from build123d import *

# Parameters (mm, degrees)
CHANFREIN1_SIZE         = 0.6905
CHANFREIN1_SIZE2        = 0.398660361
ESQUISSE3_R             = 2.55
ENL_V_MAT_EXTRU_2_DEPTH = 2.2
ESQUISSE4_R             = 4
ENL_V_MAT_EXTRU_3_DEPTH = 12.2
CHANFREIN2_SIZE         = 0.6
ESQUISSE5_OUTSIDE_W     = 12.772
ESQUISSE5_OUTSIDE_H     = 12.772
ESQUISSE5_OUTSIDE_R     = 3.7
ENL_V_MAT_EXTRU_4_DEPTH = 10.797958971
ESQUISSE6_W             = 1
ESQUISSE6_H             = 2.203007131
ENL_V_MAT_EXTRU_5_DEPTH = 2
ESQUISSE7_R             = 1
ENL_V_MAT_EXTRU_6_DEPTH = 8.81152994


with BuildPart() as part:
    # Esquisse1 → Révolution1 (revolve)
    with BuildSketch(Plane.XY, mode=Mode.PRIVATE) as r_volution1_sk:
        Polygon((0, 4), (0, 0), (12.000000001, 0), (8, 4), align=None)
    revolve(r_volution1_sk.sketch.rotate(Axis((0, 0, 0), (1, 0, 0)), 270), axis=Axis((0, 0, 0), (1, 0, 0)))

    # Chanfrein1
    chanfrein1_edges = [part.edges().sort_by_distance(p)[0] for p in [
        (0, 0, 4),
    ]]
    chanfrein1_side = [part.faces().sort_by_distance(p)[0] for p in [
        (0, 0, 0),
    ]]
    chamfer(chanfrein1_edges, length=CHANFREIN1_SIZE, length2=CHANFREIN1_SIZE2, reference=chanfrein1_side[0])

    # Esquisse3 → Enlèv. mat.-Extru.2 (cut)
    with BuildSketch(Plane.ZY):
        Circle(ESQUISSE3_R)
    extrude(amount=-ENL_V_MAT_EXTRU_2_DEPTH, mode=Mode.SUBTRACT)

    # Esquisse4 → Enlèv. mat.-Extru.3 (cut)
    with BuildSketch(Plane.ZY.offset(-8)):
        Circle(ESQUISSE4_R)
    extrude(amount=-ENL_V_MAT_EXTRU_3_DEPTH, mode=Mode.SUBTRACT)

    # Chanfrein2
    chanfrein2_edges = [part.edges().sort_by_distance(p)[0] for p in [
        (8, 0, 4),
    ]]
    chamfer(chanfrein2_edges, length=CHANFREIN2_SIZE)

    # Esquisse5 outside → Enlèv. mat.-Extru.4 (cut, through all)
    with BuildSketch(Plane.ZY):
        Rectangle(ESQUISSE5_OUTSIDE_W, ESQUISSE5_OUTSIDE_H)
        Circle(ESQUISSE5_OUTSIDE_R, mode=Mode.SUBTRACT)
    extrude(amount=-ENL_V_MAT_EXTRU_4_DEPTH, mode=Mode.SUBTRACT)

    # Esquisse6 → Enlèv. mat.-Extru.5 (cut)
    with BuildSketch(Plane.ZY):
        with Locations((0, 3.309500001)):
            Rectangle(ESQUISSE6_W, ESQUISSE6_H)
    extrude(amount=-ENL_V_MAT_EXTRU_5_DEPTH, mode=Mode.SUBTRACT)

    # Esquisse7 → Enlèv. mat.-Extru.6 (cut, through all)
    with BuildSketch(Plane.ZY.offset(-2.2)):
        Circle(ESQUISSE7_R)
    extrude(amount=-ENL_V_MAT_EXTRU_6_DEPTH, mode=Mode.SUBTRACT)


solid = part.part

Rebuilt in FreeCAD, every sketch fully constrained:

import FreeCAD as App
import Part
import Sketcher

V = App.Vector
Q = App.Units.Quantity


def edges_at(feature, points):
    """Names of the edges that pass closest to the given points."""
    edges = feature.Shape.Edges
    near = lambda p: min(range(len(edges)), key=lambda i: edges[i].distToShape(Part.Vertex(*p))[0])
    return sorted({f"Edge{near(p) + 1}" for p in points})

doc = App.newDocument("Part")
body = doc.addObject("PartDesign::Body", "Body")

# Sketch on XY plane
sketch1 = body.newObject("Sketcher::SketchObject", "Sketch")
sketch1.AttachmentSupport = (doc.getObject("XY_Plane"), [""])
sketch1.MapMode = "FlatFace"
sketch1.addGeometry(Part.LineSegment(V(0, 4, 0), V(0, 0, 0)), False)
sketch1.addGeometry(Part.LineSegment(V(0, 0, 0), V(12, 0, 0)), False)
sketch1.addGeometry(Part.LineSegment(V(12, 0, 0), V(8, 4, 0)), False)
sketch1.addGeometry(Part.LineSegment(V(8, 4, 0), V(0, 4, 0)), False)
sketch1.addConstraint(Sketcher.Constraint("Coincident", 0, 2, 1, 1))
sketch1.addConstraint(Sketcher.Constraint("Coincident", 1, 2, 2, 1))
sketch1.addConstraint(Sketcher.Constraint("Coincident", 2, 2, 3, 1))
sketch1.addConstraint(Sketcher.Constraint("Coincident", 3, 2, 0, 1))
sketch1.addConstraint(Sketcher.Constraint("Vertical", 0))
sketch1.addConstraint(Sketcher.Constraint("Horizontal", 1))
sketch1.addConstraint(Sketcher.Constraint("Horizontal", 3))
sketch1.addConstraint(Sketcher.Constraint("Coincident", 0, 2, -1, 1))
sketch1.addConstraint(Sketcher.Constraint("DistanceX", 1, 1, 1, 2, Q("12 mm")))
sketch1.addConstraint(Sketcher.Constraint("DistanceX", 3, 2, 3, 1, Q("8 mm")))
sketch1.addConstraint(Sketcher.Constraint("DistanceY", 0, 2, 0, 1, Q("4 mm")))
revolution = body.newObject("PartDesign::Revolution", "Revolution")
revolution.Profile = sketch1
revolution.ReferenceAxis = (sketch1, ["H_Axis"])
revolution.Angle = 360
doc.recompute()

chamfer = body.newObject("PartDesign::Chamfer", "Chamfer")
chamfer.Base = (revolution, edges_at(revolution, [(0, 0, 4)]))
chamfer.ChamferType = "Two distances"
chamfer.Size = 0.6905
chamfer.Size2 = 0.39866

# Sketch on YZ plane
sketch2 = body.newObject("Sketcher::SketchObject", "Sketch001")
sketch2.AttachmentSupport = (doc.getObject("YZ_Plane"), [""])
sketch2.MapMode = "FlatFace"
sketch2.addGeometry(Part.Circle(V(0, 0, 0), V(0, 0, 1), 2.5), False)
sketch2.addConstraint(Sketcher.Constraint("Coincident", 0, 3, -1, 1))
sketch2.addConstraint(Sketcher.Constraint("Diameter", 0, Q("5.1 mm")))
pocket1 = body.newObject("PartDesign::Pocket", "Pocket")
pocket1.Profile = sketch2
pocket1.Length = 2.2
pocket1.Reversed = True

# Sketch on YZ plane
sketch3 = body.newObject("Sketcher::SketchObject", "Sketch002")
sketch3.AttachmentSupport = (doc.getObject("YZ_Plane"), [""])
sketch3.MapMode = "FlatFace"
sketch3.AttachmentOffset = App.Placement(V(0, 0, 8), App.Rotation())
sketch3.addGeometry(Part.Circle(V(0, 0, 0), V(0, 0, 1), 4), False)
sketch3.addConstraint(Sketcher.Constraint("Coincident", 0, 3, -1, 1))
sketch3.addConstraint(Sketcher.Constraint("Diameter", 0, Q("8 mm")))
pocket2 = body.newObject("PartDesign::Pocket", "Pocket001")
pocket2.Profile = sketch3
pocket2.Length = 12.2
pocket2.Reversed = True
doc.recompute()

chamfer2 = body.newObject("PartDesign::Chamfer", "Chamfer001")
chamfer2.Base = (pocket2, edges_at(pocket2, [(8, 0, 4)]))
chamfer2.Size = 0.6

# Sketch on YZ plane
sketch4 = body.newObject("Sketcher::SketchObject", "Sketch003")
sketch4.AttachmentSupport = (doc.getObject("YZ_Plane"), [""])
sketch4.MapMode = "FlatFace"
sketch4.addGeometry(Part.LineSegment(V(6.4, -6.4, 0), V(-6.4, -6.4, 0)), False)
sketch4.addGeometry(Part.LineSegment(V(-6.4, -6.4, 0), V(-6.4, 6.4, 0)), False)
sketch4.addGeometry(Part.LineSegment(V(-6.4, 6.4, 0), V(6.4, 6.4, 0)), False)
sketch4.addGeometry(Part.LineSegment(V(6.4, 6.4, 0), V(6.4, -6.4, 0)), False)
sketch4.addGeometry(Part.Circle(V(0, 0, 0), V(0, 0, 1), 3.7), False)
sketch4.addConstraint(Sketcher.Constraint("Coincident", 0, 2, 1, 1))
sketch4.addConstraint(Sketcher.Constraint("Coincident", 1, 2, 2, 1))
sketch4.addConstraint(Sketcher.Constraint("Coincident", 2, 2, 3, 1))
sketch4.addConstraint(Sketcher.Constraint("Coincident", 3, 2, 0, 1))
sketch4.addConstraint(Sketcher.Constraint("Horizontal", 0))
sketch4.addConstraint(Sketcher.Constraint("Vertical", 1))
sketch4.addConstraint(Sketcher.Constraint("Horizontal", 2))
sketch4.addConstraint(Sketcher.Constraint("Vertical", 3))
sketch4.addConstraint(Sketcher.Constraint("Coincident", 4, 3, -1, 1))
sketch4.addConstraint(Sketcher.Constraint("Symmetric", 0, 2, 2, 2, -1, 1))
sketch4.addConstraint(Sketcher.Constraint("Equal", 2, 1))
sketch4.addConstraint(Sketcher.Constraint("Diameter", 4, Q("7.4 mm")))
sketch4.addConstraint(Sketcher.Constraint("DistanceX", 0, 2, 0, 1, Q("12.772 mm")))
pocket3 = body.newObject("PartDesign::Pocket", "Pocket002")
pocket3.Profile = sketch4
pocket3.Type = "ThroughAll"
pocket3.Reversed = True

# Sketch on YZ plane
sketch5 = body.newObject("Sketcher::SketchObject", "Sketch004")
sketch5.AttachmentSupport = (doc.getObject("YZ_Plane"), [""])
sketch5.MapMode = "FlatFace"
sketch5.addGeometry(Part.LineSegment(V(4.4, -0.5, 0), V(2.2, -0.5, 0)), False)
sketch5.addGeometry(Part.LineSegment(V(2.2, -0.5, 0), V(2.2, 0.5, 0)), False)
sketch5.addGeometry(Part.LineSegment(V(2.2, 0.5, 0), V(4.4, 0.5, 0)), False)
sketch5.addGeometry(Part.LineSegment(V(4.4, 0.5, 0), V(4.4, -0.5, 0)), False)
sketch5.addConstraint(Sketcher.Constraint("Coincident", 0, 2, 1, 1))
sketch5.addConstraint(Sketcher.Constraint("Coincident", 1, 2, 2, 1))
sketch5.addConstraint(Sketcher.Constraint("Coincident", 2, 2, 3, 1))
sketch5.addConstraint(Sketcher.Constraint("Coincident", 3, 2, 0, 1))
sketch5.addConstraint(Sketcher.Constraint("Horizontal", 0))
sketch5.addConstraint(Sketcher.Constraint("Vertical", 1))
sketch5.addConstraint(Sketcher.Constraint("Horizontal", 2))
sketch5.addConstraint(Sketcher.Constraint("Vertical", 3))
sketch5.addConstraint(Sketcher.Constraint("DistanceY", 1, 1, 1, 2, Q("1 mm")))
sketch5.addConstraint(Sketcher.Constraint("DistanceY", 0, 2, -1, 1, Q("0.5 mm")))
sketch5.addConstraint(Sketcher.Constraint("DistanceX", 0, 2, 0, 1, Q("2.203007 mm")))
sketch5.addConstraint(Sketcher.Constraint("DistanceX", -1, 1, 0, 2, Q("2.207996 mm")))
pocket4 = body.newObject("PartDesign::Pocket", "Pocket003")
pocket4.Profile = sketch5
pocket4.Length = 2
pocket4.Reversed = True

# Sketch on YZ plane
sketch6 = body.newObject("Sketcher::SketchObject", "Sketch005")
sketch6.AttachmentSupport = (doc.getObject("YZ_Plane"), [""])
sketch6.MapMode = "FlatFace"
sketch6.AttachmentOffset = App.Placement(V(0, 0, 2.2), App.Rotation())
sketch6.addGeometry(Part.Circle(V(0, 0, 0), V(0, 0, 1), 1), False)
sketch6.addConstraint(Sketcher.Constraint("Coincident", 0, 3, -1, 1))
sketch6.addConstraint(Sketcher.Constraint("Diameter", 0, Q("2 mm")))
pocket5 = body.newObject("PartDesign::Pocket", "Pocket004")
pocket5.Profile = sketch6
pocket5.Type = "ThroughAll"
pocket5.Reversed = True

doc.recompute()
